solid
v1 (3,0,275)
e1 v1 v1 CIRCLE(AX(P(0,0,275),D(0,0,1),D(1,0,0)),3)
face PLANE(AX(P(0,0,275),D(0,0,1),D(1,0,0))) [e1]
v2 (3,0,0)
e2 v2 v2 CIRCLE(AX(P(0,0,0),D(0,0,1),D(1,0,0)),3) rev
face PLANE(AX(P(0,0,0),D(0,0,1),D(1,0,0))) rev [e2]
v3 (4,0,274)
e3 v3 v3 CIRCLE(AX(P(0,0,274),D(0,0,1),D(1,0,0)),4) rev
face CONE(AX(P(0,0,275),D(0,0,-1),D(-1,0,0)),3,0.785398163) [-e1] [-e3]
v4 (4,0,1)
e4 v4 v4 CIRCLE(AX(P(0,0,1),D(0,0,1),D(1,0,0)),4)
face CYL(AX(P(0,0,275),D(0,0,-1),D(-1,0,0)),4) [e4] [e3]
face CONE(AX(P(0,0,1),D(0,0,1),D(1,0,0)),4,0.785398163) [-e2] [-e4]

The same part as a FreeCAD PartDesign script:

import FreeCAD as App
import Part
import Sketcher

V = App.Vector
Q = App.Units.Quantity


def edges_at(feature, points):
    """Names of the edges that pass closest to the given points."""
    edges = feature.Shape.Edges
    near = lambda p: min(range(len(edges)), key=lambda i: edges[i].distToShape(Part.Vertex(*p))[0])
    return sorted({f"Edge{near(p) + 1}" for p in points})

doc = App.newDocument("Part")
body = doc.addObject("PartDesign::Body", "Body")

sketch1 = body.newObject("Sketcher::SketchObject", "Sketch")
sketch1.AttachmentSupport = (doc.getObject("XY_Plane"), [""])
sketch1.MapMode = "FlatFace"
sketch1.addGeometry(Part.Circle(V(0, 0, 0), V(0, 0, 1), 4), False)
sketch1.addConstraint(Sketcher.Constraint("Coincident", 0, 3, -1, 1))
sketch1.addConstraint(Sketcher.Constraint("Diameter", 0, Q("8 mm")))
pad1 = body.newObject("PartDesign::Pad", "Pad")
pad1.Profile = sketch1
pad1.Length = 275
doc.recompute()

chamfer = body.newObject("PartDesign::Chamfer", "Chamfer")
chamfer.Base = (pad1, edges_at(pad1, [(-4, 0, 0), (-4, 0, 275)]))
chamfer.Size = 1

doc.recompute()
